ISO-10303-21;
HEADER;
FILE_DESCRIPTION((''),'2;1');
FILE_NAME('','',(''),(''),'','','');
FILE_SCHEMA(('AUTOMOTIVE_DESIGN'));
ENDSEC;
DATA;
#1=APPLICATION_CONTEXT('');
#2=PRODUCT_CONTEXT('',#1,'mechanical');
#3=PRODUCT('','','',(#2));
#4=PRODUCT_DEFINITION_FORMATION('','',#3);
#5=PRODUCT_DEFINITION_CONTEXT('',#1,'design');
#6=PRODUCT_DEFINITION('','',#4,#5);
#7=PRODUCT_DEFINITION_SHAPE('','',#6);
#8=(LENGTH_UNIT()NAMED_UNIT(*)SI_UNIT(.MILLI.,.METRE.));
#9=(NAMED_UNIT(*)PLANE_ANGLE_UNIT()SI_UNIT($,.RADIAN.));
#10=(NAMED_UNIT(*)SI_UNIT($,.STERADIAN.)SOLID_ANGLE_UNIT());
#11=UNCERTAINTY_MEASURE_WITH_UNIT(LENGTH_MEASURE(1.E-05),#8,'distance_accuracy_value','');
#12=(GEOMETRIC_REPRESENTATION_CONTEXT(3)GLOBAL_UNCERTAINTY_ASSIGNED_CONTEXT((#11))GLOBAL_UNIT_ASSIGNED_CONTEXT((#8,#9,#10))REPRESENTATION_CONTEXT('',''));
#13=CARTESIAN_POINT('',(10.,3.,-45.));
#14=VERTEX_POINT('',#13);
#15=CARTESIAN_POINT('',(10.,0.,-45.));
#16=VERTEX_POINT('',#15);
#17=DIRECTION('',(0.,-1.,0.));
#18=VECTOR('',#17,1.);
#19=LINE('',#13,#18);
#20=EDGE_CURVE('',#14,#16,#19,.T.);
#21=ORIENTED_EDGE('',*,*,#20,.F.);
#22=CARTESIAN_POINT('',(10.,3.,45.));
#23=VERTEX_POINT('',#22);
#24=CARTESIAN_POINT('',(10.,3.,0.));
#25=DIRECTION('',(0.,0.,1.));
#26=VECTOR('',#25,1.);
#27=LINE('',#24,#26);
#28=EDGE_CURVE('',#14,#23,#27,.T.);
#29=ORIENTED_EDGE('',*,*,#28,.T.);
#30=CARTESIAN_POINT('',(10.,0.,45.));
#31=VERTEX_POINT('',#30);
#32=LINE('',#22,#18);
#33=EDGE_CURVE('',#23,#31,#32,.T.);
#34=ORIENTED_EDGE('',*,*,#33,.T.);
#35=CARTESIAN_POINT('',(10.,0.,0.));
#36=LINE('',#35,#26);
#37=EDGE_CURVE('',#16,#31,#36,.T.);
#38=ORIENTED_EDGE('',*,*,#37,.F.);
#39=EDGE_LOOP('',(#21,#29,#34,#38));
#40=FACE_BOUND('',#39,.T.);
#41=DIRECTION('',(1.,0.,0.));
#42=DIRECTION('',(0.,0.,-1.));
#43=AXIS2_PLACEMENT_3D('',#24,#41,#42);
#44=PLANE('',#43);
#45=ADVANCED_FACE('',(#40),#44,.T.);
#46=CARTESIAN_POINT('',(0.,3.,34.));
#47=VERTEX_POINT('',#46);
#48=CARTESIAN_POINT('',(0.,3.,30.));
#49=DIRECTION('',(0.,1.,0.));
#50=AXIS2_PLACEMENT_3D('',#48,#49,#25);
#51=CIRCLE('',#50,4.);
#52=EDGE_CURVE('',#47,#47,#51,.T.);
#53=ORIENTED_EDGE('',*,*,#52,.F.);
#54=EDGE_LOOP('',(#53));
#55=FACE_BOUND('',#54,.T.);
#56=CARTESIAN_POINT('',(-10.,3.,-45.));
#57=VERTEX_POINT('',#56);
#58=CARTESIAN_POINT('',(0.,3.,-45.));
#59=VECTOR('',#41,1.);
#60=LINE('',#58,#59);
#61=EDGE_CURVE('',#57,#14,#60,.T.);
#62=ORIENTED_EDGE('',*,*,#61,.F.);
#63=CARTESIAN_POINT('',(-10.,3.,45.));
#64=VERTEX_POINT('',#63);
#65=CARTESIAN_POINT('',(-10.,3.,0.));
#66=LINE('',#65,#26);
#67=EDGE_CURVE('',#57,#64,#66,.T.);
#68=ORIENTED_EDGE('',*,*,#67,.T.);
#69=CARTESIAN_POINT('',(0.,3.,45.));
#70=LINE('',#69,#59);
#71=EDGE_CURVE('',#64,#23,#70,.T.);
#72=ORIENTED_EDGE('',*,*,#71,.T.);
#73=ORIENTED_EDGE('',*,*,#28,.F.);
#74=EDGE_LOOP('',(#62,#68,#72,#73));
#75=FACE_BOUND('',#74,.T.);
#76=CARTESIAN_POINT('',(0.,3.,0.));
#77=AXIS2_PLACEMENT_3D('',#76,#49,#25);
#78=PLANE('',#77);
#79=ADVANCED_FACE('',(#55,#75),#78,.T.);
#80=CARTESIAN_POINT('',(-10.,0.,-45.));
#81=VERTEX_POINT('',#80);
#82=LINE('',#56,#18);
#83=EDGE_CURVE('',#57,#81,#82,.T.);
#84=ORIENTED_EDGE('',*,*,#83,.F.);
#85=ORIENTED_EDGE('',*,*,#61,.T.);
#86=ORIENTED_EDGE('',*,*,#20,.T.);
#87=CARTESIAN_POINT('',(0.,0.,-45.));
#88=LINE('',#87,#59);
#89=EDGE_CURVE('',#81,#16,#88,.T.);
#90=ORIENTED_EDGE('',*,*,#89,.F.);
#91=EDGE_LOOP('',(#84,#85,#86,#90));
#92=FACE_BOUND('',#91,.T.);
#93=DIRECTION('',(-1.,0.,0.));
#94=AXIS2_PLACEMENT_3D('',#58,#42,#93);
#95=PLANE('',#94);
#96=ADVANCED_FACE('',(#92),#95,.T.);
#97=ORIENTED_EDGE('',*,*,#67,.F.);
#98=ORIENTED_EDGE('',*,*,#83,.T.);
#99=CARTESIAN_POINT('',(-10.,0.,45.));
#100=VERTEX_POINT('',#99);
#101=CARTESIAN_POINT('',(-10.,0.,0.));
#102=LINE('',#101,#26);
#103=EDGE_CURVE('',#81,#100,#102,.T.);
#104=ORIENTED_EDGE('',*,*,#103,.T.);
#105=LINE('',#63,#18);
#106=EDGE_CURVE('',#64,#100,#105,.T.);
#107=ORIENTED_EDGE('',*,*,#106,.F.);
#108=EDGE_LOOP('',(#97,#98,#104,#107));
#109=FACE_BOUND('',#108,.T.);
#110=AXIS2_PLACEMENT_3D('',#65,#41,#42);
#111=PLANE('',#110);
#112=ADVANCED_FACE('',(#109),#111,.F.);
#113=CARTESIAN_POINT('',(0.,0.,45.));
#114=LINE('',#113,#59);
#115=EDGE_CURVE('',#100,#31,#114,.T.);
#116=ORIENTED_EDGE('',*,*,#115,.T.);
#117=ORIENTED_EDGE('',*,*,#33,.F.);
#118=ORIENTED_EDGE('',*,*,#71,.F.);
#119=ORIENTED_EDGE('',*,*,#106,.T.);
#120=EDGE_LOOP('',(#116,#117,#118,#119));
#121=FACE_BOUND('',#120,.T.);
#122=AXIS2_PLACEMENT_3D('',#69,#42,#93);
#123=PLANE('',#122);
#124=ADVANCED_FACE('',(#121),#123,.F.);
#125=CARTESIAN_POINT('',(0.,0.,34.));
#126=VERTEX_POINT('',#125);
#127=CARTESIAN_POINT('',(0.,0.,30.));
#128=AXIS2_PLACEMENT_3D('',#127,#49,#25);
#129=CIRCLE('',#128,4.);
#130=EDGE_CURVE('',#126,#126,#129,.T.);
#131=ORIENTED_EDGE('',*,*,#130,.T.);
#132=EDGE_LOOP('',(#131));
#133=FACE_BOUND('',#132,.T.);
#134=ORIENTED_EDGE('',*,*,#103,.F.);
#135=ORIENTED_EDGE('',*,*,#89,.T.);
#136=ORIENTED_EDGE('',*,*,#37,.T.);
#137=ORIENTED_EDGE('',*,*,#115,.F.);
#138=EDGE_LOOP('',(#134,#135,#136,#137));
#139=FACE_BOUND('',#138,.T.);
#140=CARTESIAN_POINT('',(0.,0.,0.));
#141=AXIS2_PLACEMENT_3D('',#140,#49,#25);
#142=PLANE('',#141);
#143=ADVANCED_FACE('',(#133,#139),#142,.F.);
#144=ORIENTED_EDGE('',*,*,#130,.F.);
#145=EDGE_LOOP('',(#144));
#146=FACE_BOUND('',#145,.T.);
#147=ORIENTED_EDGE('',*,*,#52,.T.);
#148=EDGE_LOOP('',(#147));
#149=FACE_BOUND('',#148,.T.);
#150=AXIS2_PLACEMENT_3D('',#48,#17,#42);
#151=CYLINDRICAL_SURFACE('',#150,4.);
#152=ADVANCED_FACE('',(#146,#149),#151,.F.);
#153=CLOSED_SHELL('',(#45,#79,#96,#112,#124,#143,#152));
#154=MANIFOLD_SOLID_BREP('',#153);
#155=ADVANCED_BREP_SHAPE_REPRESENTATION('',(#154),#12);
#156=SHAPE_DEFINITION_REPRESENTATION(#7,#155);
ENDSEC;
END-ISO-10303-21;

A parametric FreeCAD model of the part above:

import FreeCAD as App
import Part
import Sketcher
Q = App.Units.Quantity

doc = App.newDocument("Part")
body = doc.addObject("PartDesign::Body", "Body")

# Sketch on XZ plane
sketch1 = doc.addObject("Sketcher::SketchObject", "Sketch")
body.addObject(sketch1)
sketch1.AttachmentSupport = (doc.XZ_Plane, [""])
sketch1.MapMode = "FlatFace"
sketch1.addGeometry(Part.LineSegment(App.Vector(-10, -45, 0), App.Vector(-10, 45, 0)), False)
sketch1.addGeometry(Part.LineSegment(App.Vector(-10, 45, 0), App.Vector(10, 45, 0)), False)
sketch1.addGeometry(Part.LineSegment(App.Vector(10, 45, 0), App.Vector(10, -45, 0)), False)
sketch1.addGeometry(Part.LineSegment(App.Vector(10, -45, 0), App.Vector(-10, -45, 0)), False)
sketch1.addGeometry(Part.Circle(App.Vector(0, 30, 0), App.Vector(0, 0, 1), 4), False)
sketch1.addConstraint(Sketcher.Constraint("Coincident", 0, 2, 1, 1))
sketch1.addConstraint(Sketcher.Constraint("Coincident", 1, 2, 2, 1))
sketch1.addConstraint(Sketcher.Constraint("Coincident", 2, 2, 3, 1))
sketch1.addConstraint(Sketcher.Constraint("Coincident", 3, 2, 0, 1))
sketch1.addConstraint(Sketcher.Constraint("Vertical", 0))
sketch1.addConstraint(Sketcher.Constraint("Horizontal", 1))
sketch1.addConstraint(Sketcher.Constraint("Vertical", 2))
sketch1.addConstraint(Sketcher.Constraint("Horizontal", 3))
sketch1.addConstraint(Sketcher.Constraint("Symmetric", 0, 2, 2, 2, -1, 1))
sketch1.addConstraint(Sketcher.Constraint("PointOnObject", 4, 3, -2))
sketch1.addConstraint(Sketcher.Constraint("Diameter", 4, Q("8 mm")))
sketch1.addConstraint(Sketcher.Constraint("DistanceX", 1, 1, 1, 2, Q("20 mm")))
sketch1.addConstraint(Sketcher.Constraint("DistanceY", 0, 1, 0, 2, Q("90 mm")))
sketch1.addConstraint(Sketcher.Constraint("DistanceY", -1, 1, 4, 3, Q("30 mm")))
pad1 = doc.addObject("PartDesign::Pad", "Pad")
body.addObject(pad1)
pad1.Profile = sketch1
pad1.Length = 3
pad1.Reversed = True

doc.recompute()
